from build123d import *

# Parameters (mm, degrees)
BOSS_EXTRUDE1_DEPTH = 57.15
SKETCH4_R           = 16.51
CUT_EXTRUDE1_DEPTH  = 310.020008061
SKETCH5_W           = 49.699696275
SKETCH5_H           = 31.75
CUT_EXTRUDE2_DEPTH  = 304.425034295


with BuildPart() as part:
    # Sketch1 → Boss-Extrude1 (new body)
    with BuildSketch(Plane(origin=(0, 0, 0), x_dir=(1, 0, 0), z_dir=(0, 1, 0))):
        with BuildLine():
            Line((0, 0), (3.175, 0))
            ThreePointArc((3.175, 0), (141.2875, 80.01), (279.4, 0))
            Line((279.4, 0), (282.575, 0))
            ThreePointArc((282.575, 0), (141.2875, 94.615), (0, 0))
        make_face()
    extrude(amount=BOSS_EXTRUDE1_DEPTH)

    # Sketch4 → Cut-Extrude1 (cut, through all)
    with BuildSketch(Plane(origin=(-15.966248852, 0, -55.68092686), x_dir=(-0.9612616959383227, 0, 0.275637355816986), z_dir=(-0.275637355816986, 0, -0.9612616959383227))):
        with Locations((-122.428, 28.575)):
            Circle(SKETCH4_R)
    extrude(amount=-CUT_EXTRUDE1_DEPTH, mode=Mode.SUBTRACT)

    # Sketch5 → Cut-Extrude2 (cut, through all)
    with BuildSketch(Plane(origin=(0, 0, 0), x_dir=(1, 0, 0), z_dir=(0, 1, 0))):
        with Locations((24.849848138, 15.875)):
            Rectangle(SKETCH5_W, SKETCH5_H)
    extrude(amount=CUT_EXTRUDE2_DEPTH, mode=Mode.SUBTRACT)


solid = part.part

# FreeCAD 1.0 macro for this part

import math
import FreeCAD as App
import Part
import Sketcher
from FreeCAD import Vector
Q = App.Units.Quantity

doc = App.newDocument("Part")
body = doc.addObject("PartDesign::Body", "Body")

# Sketch on XZ plane
sketch1 = body.newObject("Sketcher::SketchObject", "Sketch")
sketch1.AttachmentSupport = (doc.getObject("XZ_Plane"), [""])
sketch1.MapMode = "FlatFace"
sketch1.addGeometry([
    Part.LineSegment(Vector(0, 0, 0), Vector(3.2, 0, 0)),
    Part.ArcOfCircle(Part.Circle(Vector(141.3, 79.2, 0), Vector(0, 0, 1), 159.2), math.radians(-150), math.radians(-30)),
    Part.LineSegment(Vector(279.4, 0, 0), Vector(282.6, 0, 0)),
    Part.ArcOfCircle(Part.Circle(Vector(141.3, 58.2, 0), Vector(0, 0, 1), 152.8), math.radians(-158), math.radians(-22)),
], False)
sketch1.addConstraint([
    Sketcher.Constraint("Coincident", 0, 2, 1, 1),
    Sketcher.Constraint("Coincident", 1, 2, 2, 1),
    Sketcher.Constraint("Coincident", 2, 2, 3, 2),
    Sketcher.Constraint("Coincident", 3, 1, 0, 1),
    Sketcher.Constraint("Horizontal", 0),
    Sketcher.Constraint("Horizontal", 2),
    Sketcher.Constraint("Coincident", 3, 1, -1, 1),
    Sketcher.Constraint("PointOnObject", 1, 2, -1),
    Sketcher.Constraint("Vertical", 1, 3, 3, 3),
    Sketcher.Constraint("DistanceX", -1, 1, 1, 2, Q("11 in")),
    Sketcher.Constraint("DistanceX", 0, 1, 0, 2, Q("0.125 in")),
    Sketcher.Constraint("Radius", 1, Q("159.209241 mm")),
    Sketcher.Constraint("Radius", 3, Q("152.799006 mm")),
])
pad1 = body.newObject("PartDesign::Pad", "Pad")
pad1.Profile = sketch1
pad1.Length = Q("2.25 in")
pad1.Reversed = True

# Sketch on an angled plane
sketch2 = body.newObject("Sketcher::SketchObject", "Sketch001")
sketch2.Placement = App.Placement(Vector(-15.966249, 0, -55.680927), App.Rotation(Vector(-0.961261696, 0, 0.275637356), Vector(0, 1, 0), Vector(-0.275637356, 0, -0.961261696), "ZXY"))
sketch2.addGeometry(Part.Circle(Vector(-122, 29, 0), Vector(0, 0, 1), 17), False)
sketch2.addConstraint([
    Sketcher.Constraint("Diameter", 0, Q("1.3 in")),
    Sketcher.Constraint("DistanceX", 0, 3, -1, 1, Q("4.82 in")),
    Sketcher.Constraint("DistanceY", -1, 1, 0, 3, Q("1.125 in")),
])
pocket1 = body.newObject("PartDesign::Pocket", "Pocket")
pocket1.Profile = sketch2
pocket1.Type = "ThroughAll"

# Sketch on XZ plane
sketch3 = body.newObject("Sketcher::SketchObject", "Sketch002")
sketch3.AttachmentSupport = (doc.getObject("XZ_Plane"), [""])
sketch3.MapMode = "FlatFace"
sketch3.addGeometry([
    Part.LineSegment(Vector(0, -32, 0), Vector(0, 0, 0)),
    Part.LineSegment(Vector(0, 0, 0), Vector(50, 0, 0)),
    Part.LineSegment(Vector(50, 0, 0), Vector(50, -32, 0)),
    Part.LineSegment(Vector(50, -32, 0), Vector(0, -32, 0)),
], False)
sketch3.addConstraint([
    Sketcher.Constraint("Coincident", 0, 2, 1, 1),
    Sketcher.Constraint("Coincident", 1, 2, 2, 1),
    Sketcher.Constraint("Coincident", 2, 2, 3, 1),
    Sketcher.Constraint("Coincident", 3, 2, 0, 1),
    Sketcher.Constraint("Vertical", 0),
    Sketcher.Constraint("Horizontal", 1),
    Sketcher.Constraint("Vertical", 2),
    Sketcher.Constraint("Horizontal", 3),
    Sketcher.Constraint("Coincident", 0, 2, -1, 1),
    Sketcher.Constraint("DistanceY", 0, 1, 0, 2, Q("1.25 in")),
    Sketcher.Constraint("DistanceX", 1, 1, 1, 2, Q("49.699696 mm")),
])
pocket2 = body.newObject("PartDesign::Pocket", "Pocket001")
pocket2.Profile = sketch3
pocket2.Type = "ThroughAll"

doc.recompute()
